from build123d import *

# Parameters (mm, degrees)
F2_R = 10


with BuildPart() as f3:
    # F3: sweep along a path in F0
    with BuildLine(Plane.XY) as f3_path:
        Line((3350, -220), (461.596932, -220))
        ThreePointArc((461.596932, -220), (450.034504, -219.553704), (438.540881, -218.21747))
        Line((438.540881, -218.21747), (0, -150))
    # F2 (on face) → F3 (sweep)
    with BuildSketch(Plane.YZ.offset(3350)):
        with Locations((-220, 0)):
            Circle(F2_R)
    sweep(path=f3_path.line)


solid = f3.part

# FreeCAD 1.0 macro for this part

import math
import FreeCAD as App
import Part
import Sketcher

doc = App.newDocument("Part")
params = doc.addObject("Spreadsheet::Sheet", "Params")
for row, (alias, value) in enumerate([
    ("sketch1_diameter", "20 mm"),
], start=1):
    params.set(f"A{row}", alias)
    params.set(f"B{row}", "=" + value)
    params.setAlias(f"B{row}", alias)

body = doc.addObject("PartDesign::Body", "Body")

# Sketch on YZ plane
sketch1 = doc.addObject("Sketcher::SketchObject", "Sketch")
body.addObject(sketch1)
sketch1.AttachmentSupport = (doc.YZ_Plane, [""])
sketch1.MapMode = "FlatFace"
sketch1.AttachmentOffset = App.Placement(App.Vector(0, 0, 3350), App.Rotation())
sketch1.addGeometry(Part.Circle(App.Vector(-220, 0, 0), App.Vector(0, 0, 1), 10), False)
sketch1.addConstraint([
    Sketcher.Constraint("PointOnObject", 0, 3, -1),
    Sketcher.Constraint("Diameter", 0, 20.0),
    Sketcher.Constraint("DistanceX", 0, 3, -1, 1, 220.0),
])
sketch1.setExpression("Constraints[1]", "Params.sketch1_diameter")

# Sketch on XY plane
sketch2 = doc.addObject("Sketcher::SketchObject", "Sketch001")
body.addObject(sketch2)
sketch2.AttachmentSupport = (doc.XY_Plane, [""])
sketch2.MapMode = "FlatFace"
sketch2.addGeometry([
    Part.LineSegment(App.Vector(3350, -220, 0), App.Vector(461.596932, -220, 0)),
    Part.ArcOfCircle(Part.Circle(App.Vector(461.596919, -70.000191, 0), App.Vector(0, 0, 1), 149.999809), math.radians(-98.841821), math.radians(-89.999995)),
    Part.LineSegment(App.Vector(438.540881, -218.21747, 0), App.Vector(0, -150, 0)),
], False)
sketch2.addConstraint([
    Sketcher.Constraint("Tangent", 0, 2, 1, 2),
    Sketcher.Constraint("Tangent", 1, 1, 2, 1),
    Sketcher.Constraint("Horizontal", 0),
    Sketcher.Constraint("PointOnObject", 2, 2, -2),
    Sketcher.Constraint("DistanceX", -1, 1, 0, 1, 3350.0),
    Sketcher.Constraint("DistanceY", 0, 1, -1, 1, 220.0),
    Sketcher.Constraint("DistanceY", 2, 2, -1, 1, 150.0),
    Sketcher.Constraint("Radius", 1, 149.999809),
    Sketcher.Constraint("DistanceX", 0, 2, 0, 1, 2888.403068),
])
doc.recompute()

additivepipe = doc.addObject("PartDesign::AdditivePipe", "AdditivePipe")
body.addObject(additivepipe)
additivepipe.Profile = sketch1
additivepipe.Spine = (sketch2, ["Edge1", "Edge2", "Edge3"])

doc.recompute()
